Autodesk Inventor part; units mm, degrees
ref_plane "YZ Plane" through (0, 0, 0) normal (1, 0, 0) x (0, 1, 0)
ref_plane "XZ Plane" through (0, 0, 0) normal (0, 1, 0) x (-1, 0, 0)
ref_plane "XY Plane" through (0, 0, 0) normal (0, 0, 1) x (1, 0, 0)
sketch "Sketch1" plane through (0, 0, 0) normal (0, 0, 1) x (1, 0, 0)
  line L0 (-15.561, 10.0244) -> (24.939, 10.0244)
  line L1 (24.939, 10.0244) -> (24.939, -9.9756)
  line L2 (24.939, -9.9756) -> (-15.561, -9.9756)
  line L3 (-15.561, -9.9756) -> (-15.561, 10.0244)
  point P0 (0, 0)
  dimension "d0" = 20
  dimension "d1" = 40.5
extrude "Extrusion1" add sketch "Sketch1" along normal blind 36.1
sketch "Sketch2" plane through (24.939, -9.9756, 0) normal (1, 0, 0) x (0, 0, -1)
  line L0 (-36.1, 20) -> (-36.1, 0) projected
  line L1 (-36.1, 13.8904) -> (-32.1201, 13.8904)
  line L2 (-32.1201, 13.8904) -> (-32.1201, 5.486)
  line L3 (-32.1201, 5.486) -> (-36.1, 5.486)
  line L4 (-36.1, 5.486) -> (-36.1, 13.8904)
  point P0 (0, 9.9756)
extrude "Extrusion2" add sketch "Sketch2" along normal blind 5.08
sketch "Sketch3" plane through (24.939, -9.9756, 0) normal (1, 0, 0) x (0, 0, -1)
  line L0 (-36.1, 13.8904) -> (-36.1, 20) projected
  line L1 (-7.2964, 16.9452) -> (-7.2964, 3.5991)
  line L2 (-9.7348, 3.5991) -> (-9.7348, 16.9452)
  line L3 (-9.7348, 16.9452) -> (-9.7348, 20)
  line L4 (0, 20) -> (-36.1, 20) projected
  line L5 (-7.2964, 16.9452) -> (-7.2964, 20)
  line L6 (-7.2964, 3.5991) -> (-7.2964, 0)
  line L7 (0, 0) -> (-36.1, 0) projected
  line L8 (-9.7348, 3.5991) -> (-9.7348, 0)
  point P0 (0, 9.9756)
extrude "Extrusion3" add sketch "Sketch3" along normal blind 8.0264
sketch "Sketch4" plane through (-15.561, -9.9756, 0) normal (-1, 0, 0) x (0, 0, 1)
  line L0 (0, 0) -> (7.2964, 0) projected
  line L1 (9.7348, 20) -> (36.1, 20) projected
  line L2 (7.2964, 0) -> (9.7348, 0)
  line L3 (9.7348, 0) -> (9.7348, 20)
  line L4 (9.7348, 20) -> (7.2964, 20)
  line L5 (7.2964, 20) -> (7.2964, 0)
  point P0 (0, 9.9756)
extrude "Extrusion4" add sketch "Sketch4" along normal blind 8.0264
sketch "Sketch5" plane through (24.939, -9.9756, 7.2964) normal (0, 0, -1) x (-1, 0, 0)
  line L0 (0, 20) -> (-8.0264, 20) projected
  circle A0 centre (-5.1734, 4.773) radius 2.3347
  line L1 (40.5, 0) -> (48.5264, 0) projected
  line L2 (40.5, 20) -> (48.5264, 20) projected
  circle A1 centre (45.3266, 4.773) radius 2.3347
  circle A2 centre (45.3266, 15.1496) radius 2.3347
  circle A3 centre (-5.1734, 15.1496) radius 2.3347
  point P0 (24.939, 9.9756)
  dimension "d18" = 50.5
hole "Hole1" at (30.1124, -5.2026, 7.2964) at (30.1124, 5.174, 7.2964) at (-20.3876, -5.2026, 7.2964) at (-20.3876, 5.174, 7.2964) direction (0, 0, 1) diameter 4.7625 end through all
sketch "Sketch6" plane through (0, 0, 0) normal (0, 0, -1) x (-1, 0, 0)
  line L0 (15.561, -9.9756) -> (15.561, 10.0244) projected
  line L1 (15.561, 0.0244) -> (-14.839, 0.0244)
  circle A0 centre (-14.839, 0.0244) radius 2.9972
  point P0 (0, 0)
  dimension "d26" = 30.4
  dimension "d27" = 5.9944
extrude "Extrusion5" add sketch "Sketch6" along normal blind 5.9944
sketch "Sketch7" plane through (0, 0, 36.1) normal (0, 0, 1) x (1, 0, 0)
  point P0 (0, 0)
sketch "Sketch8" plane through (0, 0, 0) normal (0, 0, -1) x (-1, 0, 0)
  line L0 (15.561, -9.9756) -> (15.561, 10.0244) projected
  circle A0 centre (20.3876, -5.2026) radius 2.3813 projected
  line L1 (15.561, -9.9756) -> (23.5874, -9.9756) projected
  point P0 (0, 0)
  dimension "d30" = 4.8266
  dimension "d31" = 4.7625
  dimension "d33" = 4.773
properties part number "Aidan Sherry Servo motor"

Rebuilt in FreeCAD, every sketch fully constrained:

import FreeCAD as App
import Part
import Sketcher

V = App.Vector
Q = App.Units.Quantity

doc = App.newDocument("Part")
params = doc.addObject("Spreadsheet::Sheet", "Params")
for row, (alias, value) in enumerate([
    ("pad1_length", "36.1 mm"),
    ("pad2_length", "0.2 in"),
    ("sketch3_height", "0.096 in"),
    ("pad3_length", "0.316 in"),
    ("sketch4_height", "0.096 in"),
    ("pad4_length", "0.316 in"),
    ("sketch5_diameter", "0.1875 in"),
    ("hole_diameter", "0.1875 in"),
    ("sketch6_diameter", "0.236 in"),
    ("pad5_length", "0.236 in"),
], start=1):
    params.set(f"A{row}", alias)
    params.set(f"B{row}", "=" + value)
    params.setAlias(f"B{row}", alias)

body = doc.addObject("PartDesign::Body", "Body")

# Sketch on XY plane
sketch1 = body.newObject("Sketcher::SketchObject", "Sketch")
sketch1.AttachmentSupport = (doc.getObject("XY_Plane"), [""])
sketch1.MapMode = "FlatFace"
sketch1.addGeometry(Part.LineSegment(V(25, 10, 0), V(-16, 10, 0)), False)
sketch1.addGeometry(Part.LineSegment(V(-16, 10, 0), V(-16, -10, 0)), False)
sketch1.addGeometry(Part.LineSegment(V(-16, -10, 0), V(25, -10, 0)), False)
sketch1.addGeometry(Part.LineSegment(V(25, -10, 0), V(25, 10, 0)), False)
sketch1.addConstraint(Sketcher.Constraint("Coincident", 0, 2, 1, 1))
sketch1.addConstraint(Sketcher.Constraint("Coincident", 1, 2, 2, 1))
sketch1.addConstraint(Sketcher.Constraint("Coincident", 2, 2, 3, 1))
sketch1.addConstraint(Sketcher.Constraint("Coincident", 3, 2, 0, 1))
sketch1.addConstraint(Sketcher.Constraint("Horizontal", 0))
sketch1.addConstraint(Sketcher.Constraint("Vertical", 1))
sketch1.addConstraint(Sketcher.Constraint("Horizontal", 2))
sketch1.addConstraint(Sketcher.Constraint("Vertical", 3))
sketch1.addConstraint(Sketcher.Constraint("DistanceX", 0, 2, 0, 1, Q("1.5945 in")))
sketch1.addConstraint(Sketcher.Constraint("DistanceY", 1, 2, 1, 1, Q("0.7874 in")))
sketch1.addConstraint(Sketcher.Constraint("DistanceX", 0, 2, -1, 1, Q("15.561 mm")))
sketch1.addConstraint(Sketcher.Constraint("DistanceY", -1, 1, 0, 2, Q("10.0244 mm")))
pad1 = body.newObject("PartDesign::Pad", "Pad")
pad1.Profile = sketch1
pad1.setExpression("Length", "Params.pad1_length")

# Sketch on YZ plane
sketch2 = body.newObject("Sketcher::SketchObject", "Sketch001")
sketch2.AttachmentSupport = (doc.getObject("YZ_Plane"), [""])
sketch2.MapMode = "FlatFace"
sketch2.AttachmentOffset = App.Placement(V(0, 0, 24.939), App.Rotation())
sketch2.addGeometry(Part.LineSegment(V(3.9, 32.1, 0), V(3.9, 36.1, 0)), False)
sketch2.addGeometry(Part.LineSegment(V(3.9, 36.1, 0), V(-4.5, 36.1, 0)), False)
sketch2.addGeometry(Part.LineSegment(V(-4.5, 36.1, 0), V(-4.5, 32.1, 0)), False)
sketch2.addGeometry(Part.LineSegment(V(-4.5, 32.1, 0), V(3.9, 32.1, 0)), False)
sketch2.addConstraint(Sketcher.Constraint("Coincident", 0, 2, 1, 1))
sketch2.addConstraint(Sketcher.Constraint("Coincident", 1, 2, 2, 1))
sketch2.addConstraint(Sketcher.Constraint("Coincident", 2, 2, 3, 1))
sketch2.addConstraint(Sketcher.Constraint("Coincident", 3, 2, 0, 1))
sketch2.addConstraint(Sketcher.Constraint("Vertical", 0))
sketch2.addConstraint(Sketcher.Constraint("Horizontal", 1))
sketch2.addConstraint(Sketcher.Constraint("Vertical", 2))
sketch2.addConstraint(Sketcher.Constraint("Horizontal", 3))
sketch2.addConstraint(Sketcher.Constraint("DistanceY", 0, 1, 0, 2, Q("0.1567 in")))
sketch2.addConstraint(Sketcher.Constraint("DistanceX", 1, 2, 1, 1, Q("8.4044 mm")))
sketch2.addConstraint(Sketcher.Constraint("DistanceX", -1, 1, 0, 2, Q("3.9148 mm")))
sketch2.addConstraint(Sketcher.Constraint("DistanceY", -1, 1, 0, 2, Q("36.1 mm")))
pad2 = body.newObject("PartDesign::Pad", "Pad001")
pad2.Profile = sketch2
pad2.setExpression("Length", "Params.pad2_length")

# Sketch on YZ plane
sketch3 = body.newObject("Sketcher::SketchObject", "Sketch002")
sketch3.AttachmentSupport = (doc.getObject("YZ_Plane"), [""])
sketch3.MapMode = "FlatFace"
sketch3.AttachmentOffset = App.Placement(V(0, 0, 24.939), App.Rotation())
sketch3.addGeometry(Part.LineSegment(V(-10, 7.3, 0), V(10, 7.3, 0)), False)
sketch3.addGeometry(Part.LineSegment(V(10, 7.3, 0), V(10, 9.7, 0)), False)
sketch3.addGeometry(Part.LineSegment(V(10, 9.7, 0), V(-10, 9.7, 0)), False)
sketch3.addGeometry(Part.LineSegment(V(-10, 9.7, 0), V(-10, 7.3, 0)), False)
sketch3.addConstraint(Sketcher.Constraint("Coincident", 0, 2, 1, 1))
sketch3.addConstraint(Sketcher.Constraint("Coincident", 1, 2, 2, 1))
sketch3.addConstraint(Sketcher.Constraint("Coincident", 2, 2, 3, 1))
sketch3.addConstraint(Sketcher.Constraint("Coincident", 3, 2, 0, 1))
sketch3.addConstraint(Sketcher.Constraint("Horizontal", 0))
sketch3.addConstraint(Sketcher.Constraint("Vertical", 1))
sketch3.addConstraint(Sketcher.Constraint("Horizontal", 2))
sketch3.addConstraint(Sketcher.Constraint("Vertical", 3))
sketch3.addConstraint(Sketcher.Constraint("DistanceY", 1, 1, 1, 2, Q("0.096 in")))
sketch3.addConstraint(Sketcher.Constraint("DistanceX", 0, 1, 0, 2, Q("0.7874 in")))
sketch3.addConstraint(Sketcher.Constraint("DistanceX", -1, 1, 0, 2, Q("10.0244 mm")))
sketch3.addConstraint(Sketcher.Constraint("DistanceY", -1, 1, 0, 2, Q("7.2964 mm")))
sketch3.setExpression("Constraints[8]", "Params.sketch3_height")
pad3 = body.newObject("PartDesign::Pad", "Pad002")
pad3.Profile = sketch3
pad3.setExpression("Length", "Params.pad3_length")

# Sketch on YZ plane
sketch4 = body.newObject("Sketcher::SketchObject", "Sketch003")
sketch4.AttachmentSupport = (doc.getObject("YZ_Plane"), [""])
sketch4.MapMode = "FlatFace"
sketch4.AttachmentOffset = App.Placement(V(0, 0, -15.561), App.Rotation())
sketch4.addGeometry(Part.LineSegment(V(10, 7.3, 0), V(-10, 7.3, 0)), False)
sketch4.addGeometry(Part.LineSegment(V(-10, 7.3, 0), V(-10, 9.7, 0)), False)
sketch4.addGeometry(Part.LineSegment(V(-10, 9.7, 0), V(10, 9.7, 0)), False)
sketch4.addGeometry(Part.LineSegment(V(10, 9.7, 0), V(10, 7.3, 0)), False)
sketch4.addConstraint(Sketcher.Constraint("Coincident", 0, 2, 1, 1))
sketch4.addConstraint(Sketcher.Constraint("Coincident", 1, 2, 2, 1))
sketch4.addConstraint(Sketcher.Constraint("Coincident", 2, 2, 3, 1))
sketch4.addConstraint(Sketcher.Constraint("Coincident", 3, 2, 0, 1))
sketch4.addConstraint(Sketcher.Constraint("Horizontal", 0))
sketch4.addConstraint(Sketcher.Constraint("Vertical", 1))
sketch4.addConstraint(Sketcher.Constraint("Horizontal", 2))
sketch4.addConstraint(Sketcher.Constraint("Vertical", 3))
sketch4.addConstraint(Sketcher.Constraint("DistanceY", 1, 1, 1, 2, Q("0.096 in")))
sketch4.addConstraint(Sketcher.Constraint("DistanceX", 0, 2, 0, 1, Q("0.7874 in")))
sketch4.addConstraint(Sketcher.Constraint("DistanceX", 0, 2, -1, 1, Q("9.9756 mm")))
sketch4.addConstraint(Sketcher.Constraint("DistanceY", -1, 1, 0, 2, Q("7.2964 mm")))
sketch4.setExpression("Constraints[8]", "Params.sketch4_height")
pad4 = body.newObject("PartDesign::Pad", "Pad003")
pad4.Profile = sketch4
pad4.setExpression("Length", "Params.pad4_length")
pad4.Reversed = True

# Sketch on XY plane
sketch5 = body.newObject("Sketcher::SketchObject", "Sketch004")
sketch5.AttachmentSupport = (doc.getObject("XY_Plane"), [""])
sketch5.MapMode = "FlatFace"
sketch5.AttachmentOffset = App.Placement(V(0, 0, 7.2964), App.Rotation())
sketch5.addGeometry(Part.Circle(V(30.1, -5.2, 0), V(0, 0, 1), 2.4), False)
sketch5.addGeometry(Part.Circle(V(30.1, 5.2, 0), V(0, 0, 1), 2.4), False)
sketch5.addGeometry(Part.Circle(V(-20.4, -5.2, 0), V(0, 0, 1), 2.4), False)
sketch5.addGeometry(Part.Circle(V(-20.4, 5.2, 0), V(0, 0, 1), 2.4), False)
sketch5.addConstraint(Sketcher.Constraint("Equal", 0, 1))
sketch5.addConstraint(Sketcher.Constraint("Equal", 1, 2))
sketch5.addConstraint(Sketcher.Constraint("Equal", 2, 3))
sketch5.addConstraint(Sketcher.Constraint("Horizontal", 0, 3, 2, 3))
sketch5.addConstraint(Sketcher.Constraint("Horizontal", 1, 3, 3, 3))
sketch5.addConstraint(Sketcher.Constraint("Vertical", 0, 3, 1, 3))
sketch5.addConstraint(Sketcher.Constraint("Vertical", 2, 3, 3, 3))
sketch5.addConstraint(Sketcher.Constraint("Diameter", 0, Q("0.1875 in")))
sketch5.addConstraint(Sketcher.Constraint("DistanceY", -1, 1, 1, 3, Q("0.2037 in")))
sketch5.addConstraint(Sketcher.Constraint("DistanceX", 2, 3, 0, 3, Q("1.9882 in")))
sketch5.addConstraint(Sketcher.Constraint("DistanceX", -1, 1, 0, 3, Q("30.1124 mm")))
sketch5.addConstraint(Sketcher.Constraint("DistanceY", 0, 3, -1, 1, Q("5.2026 mm")))
sketch5.setExpression("Constraints[7]", "Params.sketch5_diameter")
doc.recompute()
hole = body.newObject("PartDesign::Hole", "Hole")
hole.Profile = sketch5
hole.ThreadType = "None"
hole.setExpression("Diameter", "Params.hole_diameter")
hole.DepthType = "ThroughAll"
hole.Reversed = True

# Sketch on XY plane
sketch6 = body.newObject("Sketcher::SketchObject", "Sketch005")
sketch6.AttachmentSupport = (doc.getObject("XY_Plane"), [""])
sketch6.MapMode = "FlatFace"
sketch6.addGeometry(Part.Circle(V(14.8, 0, 0), V(0, 0, 1), 3), False)
sketch6.addConstraint(Sketcher.Constraint("Diameter", 0, Q("0.236 in")))
sketch6.addConstraint(Sketcher.Constraint("DistanceX", -1, 1, 0, 3, Q("14.839 mm")))
sketch6.addConstraint(Sketcher.Constraint("DistanceY", -1, 1, 0, 3, Q("0.0244 mm")))
sketch6.setExpression("Constraints[0]", "Params.sketch6_diameter")
pad5 = body.newObject("PartDesign::Pad", "Pad004")
pad5.Profile = sketch6
pad5.setExpression("Length", "Params.pad5_length")
pad5.Reversed = True

doc.recompute()
